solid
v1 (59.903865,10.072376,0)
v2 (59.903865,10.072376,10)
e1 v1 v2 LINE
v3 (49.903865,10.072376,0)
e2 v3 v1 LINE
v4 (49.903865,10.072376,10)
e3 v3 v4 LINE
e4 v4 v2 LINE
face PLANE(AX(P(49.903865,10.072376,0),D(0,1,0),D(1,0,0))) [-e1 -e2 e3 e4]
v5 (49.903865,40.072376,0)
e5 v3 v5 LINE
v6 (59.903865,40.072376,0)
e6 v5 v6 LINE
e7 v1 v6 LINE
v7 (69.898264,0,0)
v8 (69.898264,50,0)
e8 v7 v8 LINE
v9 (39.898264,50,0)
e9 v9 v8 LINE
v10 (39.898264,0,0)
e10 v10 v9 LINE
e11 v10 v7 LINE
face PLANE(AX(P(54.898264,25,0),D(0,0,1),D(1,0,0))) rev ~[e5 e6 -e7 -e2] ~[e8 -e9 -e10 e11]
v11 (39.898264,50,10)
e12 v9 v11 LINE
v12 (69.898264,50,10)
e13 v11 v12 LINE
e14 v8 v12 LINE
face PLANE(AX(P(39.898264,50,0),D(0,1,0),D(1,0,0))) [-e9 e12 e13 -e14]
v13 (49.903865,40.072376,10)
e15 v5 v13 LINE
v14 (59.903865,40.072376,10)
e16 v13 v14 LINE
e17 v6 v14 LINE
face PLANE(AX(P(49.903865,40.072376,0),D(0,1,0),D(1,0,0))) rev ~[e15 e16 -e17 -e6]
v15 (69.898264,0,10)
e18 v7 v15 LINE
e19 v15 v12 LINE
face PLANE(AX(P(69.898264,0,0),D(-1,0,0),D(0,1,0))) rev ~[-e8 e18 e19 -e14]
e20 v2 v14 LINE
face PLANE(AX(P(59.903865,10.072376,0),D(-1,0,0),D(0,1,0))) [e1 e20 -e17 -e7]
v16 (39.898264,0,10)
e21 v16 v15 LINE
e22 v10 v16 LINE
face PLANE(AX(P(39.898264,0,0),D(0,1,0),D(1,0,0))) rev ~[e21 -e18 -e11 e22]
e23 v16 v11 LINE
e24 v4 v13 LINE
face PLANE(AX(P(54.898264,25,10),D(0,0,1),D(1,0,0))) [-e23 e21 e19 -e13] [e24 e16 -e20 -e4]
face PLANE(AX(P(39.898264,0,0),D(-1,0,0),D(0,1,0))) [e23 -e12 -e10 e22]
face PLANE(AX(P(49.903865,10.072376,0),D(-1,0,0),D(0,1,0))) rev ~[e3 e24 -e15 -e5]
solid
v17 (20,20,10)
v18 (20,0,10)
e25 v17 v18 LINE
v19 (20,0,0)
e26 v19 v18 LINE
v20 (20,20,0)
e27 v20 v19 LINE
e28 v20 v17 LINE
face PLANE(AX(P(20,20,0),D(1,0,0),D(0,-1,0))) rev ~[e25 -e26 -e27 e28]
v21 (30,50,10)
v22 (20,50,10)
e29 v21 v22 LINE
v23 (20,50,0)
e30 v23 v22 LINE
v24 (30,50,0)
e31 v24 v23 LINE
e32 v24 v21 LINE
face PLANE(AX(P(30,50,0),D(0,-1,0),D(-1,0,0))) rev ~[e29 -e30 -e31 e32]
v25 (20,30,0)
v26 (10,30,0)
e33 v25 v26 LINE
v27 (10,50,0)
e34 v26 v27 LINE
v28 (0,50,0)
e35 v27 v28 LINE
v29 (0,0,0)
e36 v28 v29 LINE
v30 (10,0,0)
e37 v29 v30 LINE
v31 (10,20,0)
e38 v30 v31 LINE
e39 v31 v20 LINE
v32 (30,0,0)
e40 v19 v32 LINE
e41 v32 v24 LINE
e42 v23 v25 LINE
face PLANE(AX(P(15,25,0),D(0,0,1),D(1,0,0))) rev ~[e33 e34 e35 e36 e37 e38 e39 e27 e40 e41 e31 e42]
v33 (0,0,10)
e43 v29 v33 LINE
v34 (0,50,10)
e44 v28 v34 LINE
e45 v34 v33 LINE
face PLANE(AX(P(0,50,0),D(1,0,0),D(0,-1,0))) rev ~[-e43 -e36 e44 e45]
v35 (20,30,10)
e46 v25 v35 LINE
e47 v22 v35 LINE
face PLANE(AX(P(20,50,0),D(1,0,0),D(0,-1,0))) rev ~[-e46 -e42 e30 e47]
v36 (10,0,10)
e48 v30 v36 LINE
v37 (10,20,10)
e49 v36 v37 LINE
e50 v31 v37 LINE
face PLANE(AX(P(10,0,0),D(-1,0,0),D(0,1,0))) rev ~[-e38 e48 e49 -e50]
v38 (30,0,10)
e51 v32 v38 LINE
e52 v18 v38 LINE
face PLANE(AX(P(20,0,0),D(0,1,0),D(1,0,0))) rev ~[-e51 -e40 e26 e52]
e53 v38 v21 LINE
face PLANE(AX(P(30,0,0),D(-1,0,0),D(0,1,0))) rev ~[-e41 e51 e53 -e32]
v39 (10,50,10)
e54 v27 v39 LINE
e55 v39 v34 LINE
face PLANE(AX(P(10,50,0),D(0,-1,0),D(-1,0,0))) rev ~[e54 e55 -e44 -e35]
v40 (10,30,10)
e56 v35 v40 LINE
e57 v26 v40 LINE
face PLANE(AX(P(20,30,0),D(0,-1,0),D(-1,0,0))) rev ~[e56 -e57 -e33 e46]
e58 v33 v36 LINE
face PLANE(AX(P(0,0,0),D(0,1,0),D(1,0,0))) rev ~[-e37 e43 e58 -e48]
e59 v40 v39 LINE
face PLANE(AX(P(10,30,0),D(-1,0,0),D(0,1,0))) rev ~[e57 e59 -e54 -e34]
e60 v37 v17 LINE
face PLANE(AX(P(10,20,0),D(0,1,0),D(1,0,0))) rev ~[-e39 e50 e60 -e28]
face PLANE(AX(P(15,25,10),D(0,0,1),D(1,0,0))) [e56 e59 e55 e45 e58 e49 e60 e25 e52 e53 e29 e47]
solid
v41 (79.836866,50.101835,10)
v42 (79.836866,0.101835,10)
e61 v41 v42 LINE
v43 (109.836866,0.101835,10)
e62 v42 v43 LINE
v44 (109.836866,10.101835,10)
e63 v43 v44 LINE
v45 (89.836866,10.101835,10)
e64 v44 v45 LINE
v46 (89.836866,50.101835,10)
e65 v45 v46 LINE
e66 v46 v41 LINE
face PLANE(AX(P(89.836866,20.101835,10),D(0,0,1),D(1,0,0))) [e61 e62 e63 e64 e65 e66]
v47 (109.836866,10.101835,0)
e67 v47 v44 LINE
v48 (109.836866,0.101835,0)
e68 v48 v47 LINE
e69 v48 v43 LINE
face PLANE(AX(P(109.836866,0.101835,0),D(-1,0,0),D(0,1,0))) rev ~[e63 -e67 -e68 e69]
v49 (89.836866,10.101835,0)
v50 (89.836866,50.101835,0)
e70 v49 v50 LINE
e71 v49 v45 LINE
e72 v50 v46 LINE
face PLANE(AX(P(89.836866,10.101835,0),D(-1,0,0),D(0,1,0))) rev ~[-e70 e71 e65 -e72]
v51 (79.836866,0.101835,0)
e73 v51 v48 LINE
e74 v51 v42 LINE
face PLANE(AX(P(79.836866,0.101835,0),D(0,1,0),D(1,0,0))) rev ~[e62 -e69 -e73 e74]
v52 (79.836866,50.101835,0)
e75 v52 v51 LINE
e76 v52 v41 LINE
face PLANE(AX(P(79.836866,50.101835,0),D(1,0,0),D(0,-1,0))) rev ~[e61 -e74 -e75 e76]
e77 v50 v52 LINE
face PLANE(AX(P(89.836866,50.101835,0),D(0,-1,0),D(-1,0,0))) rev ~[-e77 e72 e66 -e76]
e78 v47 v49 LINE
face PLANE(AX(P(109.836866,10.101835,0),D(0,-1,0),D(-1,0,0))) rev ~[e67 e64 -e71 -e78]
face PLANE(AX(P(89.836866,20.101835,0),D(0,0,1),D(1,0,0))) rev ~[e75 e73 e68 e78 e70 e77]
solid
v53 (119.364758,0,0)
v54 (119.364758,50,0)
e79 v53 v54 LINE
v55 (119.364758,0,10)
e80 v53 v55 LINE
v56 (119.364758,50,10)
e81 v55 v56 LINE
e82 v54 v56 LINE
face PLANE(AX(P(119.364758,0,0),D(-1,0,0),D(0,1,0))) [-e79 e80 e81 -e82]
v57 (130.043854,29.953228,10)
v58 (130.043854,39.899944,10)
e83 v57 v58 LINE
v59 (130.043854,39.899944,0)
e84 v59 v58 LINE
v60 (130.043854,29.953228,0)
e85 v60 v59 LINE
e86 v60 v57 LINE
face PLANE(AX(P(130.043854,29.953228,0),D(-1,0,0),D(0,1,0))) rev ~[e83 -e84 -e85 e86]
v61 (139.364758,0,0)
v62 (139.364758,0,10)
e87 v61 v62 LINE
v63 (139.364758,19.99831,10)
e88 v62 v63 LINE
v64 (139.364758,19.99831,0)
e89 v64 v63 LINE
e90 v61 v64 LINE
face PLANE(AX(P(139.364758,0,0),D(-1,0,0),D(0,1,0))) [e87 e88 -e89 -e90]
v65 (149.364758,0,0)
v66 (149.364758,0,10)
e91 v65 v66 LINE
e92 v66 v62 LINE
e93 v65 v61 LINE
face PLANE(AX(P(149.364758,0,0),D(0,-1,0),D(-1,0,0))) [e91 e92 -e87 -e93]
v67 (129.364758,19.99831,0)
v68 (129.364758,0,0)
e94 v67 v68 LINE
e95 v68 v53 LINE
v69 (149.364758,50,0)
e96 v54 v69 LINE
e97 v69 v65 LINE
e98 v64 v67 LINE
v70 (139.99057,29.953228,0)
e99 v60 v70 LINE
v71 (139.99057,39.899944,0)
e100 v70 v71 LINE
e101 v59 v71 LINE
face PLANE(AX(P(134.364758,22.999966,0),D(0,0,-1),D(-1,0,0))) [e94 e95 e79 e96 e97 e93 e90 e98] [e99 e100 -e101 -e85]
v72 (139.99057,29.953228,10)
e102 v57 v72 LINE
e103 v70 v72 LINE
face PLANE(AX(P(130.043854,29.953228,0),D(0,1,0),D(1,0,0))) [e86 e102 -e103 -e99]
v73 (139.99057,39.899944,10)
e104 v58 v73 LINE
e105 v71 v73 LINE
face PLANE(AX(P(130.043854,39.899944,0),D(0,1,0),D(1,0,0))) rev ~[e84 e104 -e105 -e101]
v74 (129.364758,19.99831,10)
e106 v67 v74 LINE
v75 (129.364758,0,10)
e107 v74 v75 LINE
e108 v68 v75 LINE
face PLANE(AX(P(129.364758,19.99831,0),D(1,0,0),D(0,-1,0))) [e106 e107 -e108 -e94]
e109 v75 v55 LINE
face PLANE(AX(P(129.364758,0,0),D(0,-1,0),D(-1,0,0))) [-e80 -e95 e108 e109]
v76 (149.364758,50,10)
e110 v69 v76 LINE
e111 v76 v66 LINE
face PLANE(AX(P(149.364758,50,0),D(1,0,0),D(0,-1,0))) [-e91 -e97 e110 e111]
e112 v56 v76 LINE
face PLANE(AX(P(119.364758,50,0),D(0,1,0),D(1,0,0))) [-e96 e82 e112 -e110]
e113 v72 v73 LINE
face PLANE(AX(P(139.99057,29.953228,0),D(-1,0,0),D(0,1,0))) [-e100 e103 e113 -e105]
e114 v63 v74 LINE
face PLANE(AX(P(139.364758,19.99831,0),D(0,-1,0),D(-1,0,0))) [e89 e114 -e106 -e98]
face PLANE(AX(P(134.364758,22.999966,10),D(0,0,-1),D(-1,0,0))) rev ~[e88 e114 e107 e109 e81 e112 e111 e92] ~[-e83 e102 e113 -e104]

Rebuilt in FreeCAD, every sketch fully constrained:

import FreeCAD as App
import Part
import Sketcher
from FreeCAD import Vector
Q = App.Units.Quantity

doc = App.newDocument("Part")
params = doc.addObject("Spreadsheet::Sheet", "Params")
for row, (alias, value) in enumerate([
    ("sketch1_width", "10 mm"),
    ("sketch1_height", "50 mm"),
    ("sketch1_height2", "20 mm"),
    ("pad1_length", "10 mm"),
    ("sketch2_width", "30 mm"),
    ("sketch2_width2", "10 mm"),
    ("sketch2_height", "50 mm"),
    ("pad2_length", "10 mm"),
    ("sketch3_width", "30 mm"),
    ("sketch3_width2", "20 mm"),
    ("sketch3_height", "50 mm"),
    ("pad3_length", "10 mm"),
    ("sketch4_width", "10 mm"),
    ("sketch4_height", "50 mm"),
    ("pad4_length", "10 mm"),
], start=1):
    params.set(f"A{row}", alias)
    params.set(f"B{row}", "=" + value)
    params.setAlias(f"B{row}", alias)

body = doc.addObject("PartDesign::Body", "Body")

# Sketch on XY plane
sketch1 = body.newObject("Sketcher::SketchObject", "Sketch")
sketch1.AttachmentSupport = (doc.getObject("XY_Plane"), [""])
sketch1.MapMode = "FlatFace"
sketch1.addGeometry([
    Part.LineSegment(Vector(0, 50, 0), Vector(0, 0, 0)),  # 0
    Part.LineSegment(Vector(0, 0, 0), Vector(10, 0, 0)),  # 1
    Part.LineSegment(Vector(10, 0, 0), Vector(10, 20, 0)),  # 2
    Part.LineSegment(Vector(10, 20, 0), Vector(20, 20, 0)),  # 3
    Part.LineSegment(Vector(20, 20, 0), Vector(20, 0, 0)),  # 4
    Part.LineSegment(Vector(20, 0, 0), Vector(30, 0, 0)),  # 5
    Part.LineSegment(Vector(30, 0, 0), Vector(30, 50, 0)),  # 6
    Part.LineSegment(Vector(30, 50, 0), Vector(20, 50, 0)),  # 7
    Part.LineSegment(Vector(20, 50, 0), Vector(20, 30, 0)),  # 8
    Part.LineSegment(Vector(20, 30, 0), Vector(10, 30, 0)),  # 9
    Part.LineSegment(Vector(10, 30, 0), Vector(10, 50, 0)),  # 10
    Part.LineSegment(Vector(10, 50, 0), Vector(0, 50, 0)),  # 11
], False)
sketch1.addConstraint([
    Sketcher.Constraint("Coincident", 0, 2, 1, 1),
    Sketcher.Constraint("Coincident", 1, 2, 2, 1),
    Sketcher.Constraint("Coincident", 2, 2, 3, 1),
    Sketcher.Constraint("Coincident", 3, 2, 4, 1),
    Sketcher.Constraint("Coincident", 4, 2, 5, 1),
    Sketcher.Constraint("Coincident", 5, 2, 6, 1),
    Sketcher.Constraint("Coincident", 6, 2, 7, 1),
    Sketcher.Constraint("Coincident", 7, 2, 8, 1),
    Sketcher.Constraint("Coincident", 8, 2, 9, 1),
    Sketcher.Constraint("Coincident", 9, 2, 10, 1),
    Sketcher.Constraint("Coincident", 10, 2, 11, 1),
    Sketcher.Constraint("Coincident", 11, 2, 0, 1),
    Sketcher.Constraint("Vertical", 0),
    Sketcher.Constraint("Horizontal", 1),
    Sketcher.Constraint("Vertical", 2),
    Sketcher.Constraint("Horizontal", 3),
    Sketcher.Constraint("Vertical", 4),
    Sketcher.Constraint("Horizontal", 5),
    Sketcher.Constraint("Vertical", 6),
    Sketcher.Constraint("Horizontal", 7),
    Sketcher.Constraint("Vertical", 8),
    Sketcher.Constraint("Horizontal", 9),
    Sketcher.Constraint("Vertical", 10),
    Sketcher.Constraint("Horizontal", 11),
    Sketcher.Constraint("Coincident", 0, 2, -1, 1),
    Sketcher.Constraint("PointOnObject", 4, 2, -1),
    Sketcher.Constraint("Horizontal", 7, 2, 10, 2),
    Sketcher.Constraint("Vertical", 4, 2, 7, 2),
    Sketcher.Constraint("Vertical", 2, 2, 9, 2),
    Sketcher.Constraint("Equal", 1, 3),
    Sketcher.Constraint("Equal", 3, 5),
    Sketcher.Constraint("Equal", 4, 8),
    Sketcher.Constraint("DistanceX", 1, 1, 1, 2, Q("10 mm")),
    Sketcher.Constraint("DistanceY", 0, 2, 0, 1, Q("50 mm")),
    Sketcher.Constraint("DistanceY", 2, 1, 2, 2, Q("20 mm")),
])
sketch1.setExpression("Constraints[32]", "Params.sketch1_width")
sketch1.setExpression("Constraints[33]", "Params.sketch1_height")
sketch1.setExpression("Constraints[34]", "Params.sketch1_height2")
pad1 = body.newObject("PartDesign::Pad", "Pad")
pad1.Profile = sketch1
pad1.setExpression("Length", "Params.pad1_length")
body2 = doc.addObject("PartDesign::Body", "Body001")

# Sketch on XY plane
sketch2 = body2.newObject("Sketcher::SketchObject", "Sketch001")
sketch2.AttachmentSupport = (doc.getObject("XY_Plane001"), [""])
sketch2.MapMode = "FlatFace"
sketch2.addGeometry([
    Part.LineSegment(Vector(39.898264, 50, 0), Vector(39.898264, 0, 0)),  # 0
    Part.LineSegment(Vector(39.898264, 0, 0), Vector(69.898264, 0, 0)),  # 1
    Part.LineSegment(Vector(69.898264, 0, 0), Vector(69.898264, 50, 0)),  # 2
    Part.LineSegment(Vector(69.898264, 50, 0), Vector(39.898264, 50, 0)),  # 3
    Part.LineSegment(Vector(59.903865, 10.072376, 0), Vector(49.903865, 10.072376, 0)),  # 4
    Part.LineSegment(Vector(49.903865, 10.072376, 0), Vector(49.903865, 40.072376, 0)),  # 5
    Part.LineSegment(Vector(49.903865, 40.072376, 0), Vector(59.903865, 40.072376, 0)),  # 6
    Part.LineSegment(Vector(59.903865, 40.072376, 0), Vector(59.903865, 10.072376, 0)),  # 7
], False)
sketch2.addConstraint([
    Sketcher.Constraint("Coincident", 0, 2, 1, 1),
    Sketcher.Constraint("Coincident", 1, 2, 2, 1),
    Sketcher.Constraint("Coincident", 2, 2, 3, 1),
    Sketcher.Constraint("Coincident", 3, 2, 0, 1),
    Sketcher.Constraint("Coincident", 4, 2, 5, 1),
    Sketcher.Constraint("Coincident", 5, 2, 6, 1),
    Sketcher.Constraint("Coincident", 6, 2, 7, 1),
    Sketcher.Constraint("Coincident", 7, 2, 4, 1),
    Sketcher.Constraint("Vertical", 0),
    Sketcher.Constraint("Horizontal", 1),
    Sketcher.Constraint("Vertical", 2),
    Sketcher.Constraint("Horizontal", 3),
    Sketcher.Constraint("Horizontal", 4),
    Sketcher.Constraint("Vertical", 5),
    Sketcher.Constraint("Horizontal", 6),
    Sketcher.Constraint("Vertical", 7),
    Sketcher.Constraint("PointOnObject", 0, 2, -1),
    Sketcher.Constraint("Equal", 3, 5),
    Sketcher.Constraint("DistanceX", 1, 1, 1, 2, Q("30 mm")),
    Sketcher.Constraint("DistanceX", 4, 2, 4, 1, Q("10 mm")),
    Sketcher.Constraint("DistanceY", 0, 2, 0, 1, Q("50 mm")),
    Sketcher.Constraint("DistanceX", 0, 2, 4, 2, Q("10.005601 mm")),
    Sketcher.Constraint("DistanceX", -1, 1, 0, 2, Q("39.898264 mm")),
    Sketcher.Constraint("DistanceY", -1, 1, 4, 2, Q("10.072376 mm")),
])
sketch2.setExpression("Constraints[18]", "Params.sketch2_width")
sketch2.setExpression("Constraints[19]", "Params.sketch2_width2")
sketch2.setExpression("Constraints[20]", "Params.sketch2_height")
pad2 = body2.newObject("PartDesign::Pad", "Pad001")
pad2.Profile = sketch2
pad2.setExpression("Length", "Params.pad2_length")
body3 = doc.addObject("PartDesign::Body", "Body002")

# Sketch on XY plane
sketch3 = body3.newObject("Sketcher::SketchObject", "Sketch002")
sketch3.AttachmentSupport = (doc.getObject("XY_Plane002"), [""])
sketch3.MapMode = "FlatFace"
sketch3.addGeometry([
    Part.LineSegment(Vector(79.836866, 50.101835, 0), Vector(79.836866, 0.101835, 0)),  # 0
    Part.LineSegment(Vector(79.836866, 0.101835, 0), Vector(109.836866, 0.101835, 0)),  # 1
    Part.LineSegment(Vector(109.836866, 0.101835, 0), Vector(109.836866, 10.101835, 0)),  # 2
    Part.LineSegment(Vector(109.836866, 10.101835, 0), Vector(89.836866, 10.101835, 0)),  # 3
    Part.LineSegment(Vector(89.836866, 10.101835, 0), Vector(89.836866, 50.101835, 0)),  # 4
    Part.LineSegment(Vector(89.836866, 50.101835, 0), Vector(79.836866, 50.101835, 0)),  # 5
], False)
sketch3.addConstraint([
    Sketcher.Constraint("Coincident", 0, 2, 1, 1),
    Sketcher.Constraint("Coincident", 1, 2, 2, 1),
    Sketcher.Constraint("Coincident", 2, 2, 3, 1),
    Sketcher.Constraint("Coincident", 3, 2, 4, 1),
    Sketcher.Constraint("Coincident", 4, 2, 5, 1),
    Sketcher.Constraint("Coincident", 5, 2, 0, 1),
    Sketcher.Constraint("Vertical", 0),
    Sketcher.Constraint("Horizontal", 1),
    Sketcher.Constraint("Vertical", 2),
    Sketcher.Constraint("Horizontal", 3),
    Sketcher.Constraint("Vertical", 4),
    Sketcher.Constraint("Horizontal", 5),
    Sketcher.Constraint("Equal", 5, 2),
    Sketcher.Constraint("DistanceX", 1, 1, 1, 2, Q("30 mm")),
    Sketcher.Constraint("DistanceX", 3, 2, 3, 1, Q("20 mm")),
    Sketcher.Constraint("DistanceY", 0, 2, 0, 1, Q("50 mm")),
    Sketcher.Constraint("DistanceX", -1, 1, 0, 2, Q("79.836866 mm")),
    Sketcher.Constraint("DistanceY", -1, 1, 0, 2, Q("0.101835 mm")),
])
sketch3.setExpression("Constraints[13]", "Params.sketch3_width")
sketch3.setExpression("Constraints[14]", "Params.sketch3_width2")
sketch3.setExpression("Constraints[15]", "Params.sketch3_height")
pad3 = body3.newObject("PartDesign::Pad", "Pad002")
pad3.Profile = sketch3
pad3.setExpression("Length", "Params.pad3_length")
body4 = doc.addObject("PartDesign::Body", "Body003")

# Sketch on XY plane
sketch4 = body4.newObject("Sketcher::SketchObject", "Sketch003")
sketch4.AttachmentSupport = (doc.getObject("XY_Plane003"), [""])
sketch4.MapMode = "FlatFace"
sketch4.addGeometry([
    Part.LineSegment(Vector(119.364758, 50, 0), Vector(119.364758, 0, 0)),  # 0
    Part.LineSegment(Vector(119.364758, 0, 0), Vector(129.364758, 0, 0)),  # 1
    Part.LineSegment(Vector(129.364758, 0, 0), Vector(129.364758, 19.99831, 0)),  # 2
    Part.LineSegment(Vector(129.364758, 19.99831, 0), Vector(139.364758, 19.99831, 0)),  # 3
    Part.LineSegment(Vector(139.364758, 19.99831, 0), Vector(139.364758, 0, 0)),  # 4
    Part.LineSegment(Vector(139.364758, 0, 0), Vector(149.364758, 0, 0)),  # 5
    Part.LineSegment(Vector(149.364758, 0, 0), Vector(149.364758, 50, 0)),  # 6
    Part.LineSegment(Vector(149.364758, 50, 0), Vector(119.364758, 50, 0)),  # 7
    Part.LineSegment(Vector(130.043854, 29.953228, 0), Vector(130.043854, 39.899944, 0)),  # 8
    Part.LineSegment(Vector(130.043854, 39.899944, 0), Vector(139.99057, 39.899944, 0)),  # 9
    Part.LineSegment(Vector(139.99057, 39.899944, 0), Vector(139.99057, 29.953228, 0)),  # 10
    Part.LineSegment(Vector(139.99057, 29.953228, 0), Vector(130.043854, 29.953228, 0)),  # 11
], False)
sketch4.addConstraint([
    Sketcher.Constraint("Coincident", 0, 2, 1, 1),
    Sketcher.Constraint("Coincident", 1, 2, 2, 1),
    Sketcher.Constraint("Coincident", 2, 2, 3, 1),
    Sketcher.Constraint("Coincident", 3, 2, 4, 1),
    Sketcher.Constraint("Coincident", 4, 2, 5, 1),
    Sketcher.Constraint("Coincident", 5, 2, 6, 1),
    Sketcher.Constraint("Coincident", 6, 2, 7, 1),
    Sketcher.Constraint("Coincident", 7, 2, 0, 1),
    Sketcher.Constraint("Coincident", 8, 2, 9, 1),
    Sketcher.Constraint("Coincident", 9, 2, 10, 1),
    Sketcher.Constraint("Coincident", 10, 2, 11, 1),
    Sketcher.Constraint("Coincident", 11, 2, 8, 1),
    Sketcher.Constraint("Vertical", 0),
    Sketcher.Constraint("Horizontal", 1),
    Sketcher.Constraint("Vertical", 2),
    Sketcher.Constraint("Horizontal", 3),
    Sketcher.Constraint("Vertical", 4),
    Sketcher.Constraint("Horizontal", 5),
    Sketcher.Constraint("Vertical", 6),
    Sketcher.Constraint("Horizontal", 7),
    Sketcher.Constraint("Vertical", 8),
    Sketcher.Constraint("Horizontal", 9),
    Sketcher.Constraint("Vertical", 10),
    Sketcher.Constraint("Horizontal", 11),
    Sketcher.Constraint("PointOnObject", 0, 2, -1),
    Sketcher.Constraint("PointOnObject", 4, 2, -1),
    Sketcher.Constraint("Equal", 1, 3),
    Sketcher.Constraint("Equal", 3, 5),
    Sketcher.Constraint("Equal", 11, 8),
    Sketcher.Constraint("DistanceX", 1, 1, 1, 2, Q("10 mm")),
    Sketcher.Constraint("DistanceY", 0, 2, 0, 1, Q("50 mm")),
    Sketcher.Constraint("DistanceY", 2, 1, 2, 2, Q("19.99831 mm")),
    Sketcher.Constraint("DistanceX", 9, 1, 9, 2, Q("9.946716 mm")),
    Sketcher.Constraint("DistanceX", -1, 1, 1, 2, Q("129.364758 mm")),
    Sketcher.Constraint("DistanceX", -1, 1, 9, 2, Q("139.99057 mm")),
    Sketcher.Constraint("DistanceY", -1, 1, 8, 2, Q("39.899944 mm")),
])
sketch4.setExpression("Constraints[29]", "Params.sketch4_width")
sketch4.setExpression("Constraints[30]", "Params.sketch4_height")
pad4 = body4.newObject("PartDesign::Pad", "Pad003")
pad4.Profile = sketch4
pad4.setExpression("Length", "Params.pad4_length")

doc.recompute()
